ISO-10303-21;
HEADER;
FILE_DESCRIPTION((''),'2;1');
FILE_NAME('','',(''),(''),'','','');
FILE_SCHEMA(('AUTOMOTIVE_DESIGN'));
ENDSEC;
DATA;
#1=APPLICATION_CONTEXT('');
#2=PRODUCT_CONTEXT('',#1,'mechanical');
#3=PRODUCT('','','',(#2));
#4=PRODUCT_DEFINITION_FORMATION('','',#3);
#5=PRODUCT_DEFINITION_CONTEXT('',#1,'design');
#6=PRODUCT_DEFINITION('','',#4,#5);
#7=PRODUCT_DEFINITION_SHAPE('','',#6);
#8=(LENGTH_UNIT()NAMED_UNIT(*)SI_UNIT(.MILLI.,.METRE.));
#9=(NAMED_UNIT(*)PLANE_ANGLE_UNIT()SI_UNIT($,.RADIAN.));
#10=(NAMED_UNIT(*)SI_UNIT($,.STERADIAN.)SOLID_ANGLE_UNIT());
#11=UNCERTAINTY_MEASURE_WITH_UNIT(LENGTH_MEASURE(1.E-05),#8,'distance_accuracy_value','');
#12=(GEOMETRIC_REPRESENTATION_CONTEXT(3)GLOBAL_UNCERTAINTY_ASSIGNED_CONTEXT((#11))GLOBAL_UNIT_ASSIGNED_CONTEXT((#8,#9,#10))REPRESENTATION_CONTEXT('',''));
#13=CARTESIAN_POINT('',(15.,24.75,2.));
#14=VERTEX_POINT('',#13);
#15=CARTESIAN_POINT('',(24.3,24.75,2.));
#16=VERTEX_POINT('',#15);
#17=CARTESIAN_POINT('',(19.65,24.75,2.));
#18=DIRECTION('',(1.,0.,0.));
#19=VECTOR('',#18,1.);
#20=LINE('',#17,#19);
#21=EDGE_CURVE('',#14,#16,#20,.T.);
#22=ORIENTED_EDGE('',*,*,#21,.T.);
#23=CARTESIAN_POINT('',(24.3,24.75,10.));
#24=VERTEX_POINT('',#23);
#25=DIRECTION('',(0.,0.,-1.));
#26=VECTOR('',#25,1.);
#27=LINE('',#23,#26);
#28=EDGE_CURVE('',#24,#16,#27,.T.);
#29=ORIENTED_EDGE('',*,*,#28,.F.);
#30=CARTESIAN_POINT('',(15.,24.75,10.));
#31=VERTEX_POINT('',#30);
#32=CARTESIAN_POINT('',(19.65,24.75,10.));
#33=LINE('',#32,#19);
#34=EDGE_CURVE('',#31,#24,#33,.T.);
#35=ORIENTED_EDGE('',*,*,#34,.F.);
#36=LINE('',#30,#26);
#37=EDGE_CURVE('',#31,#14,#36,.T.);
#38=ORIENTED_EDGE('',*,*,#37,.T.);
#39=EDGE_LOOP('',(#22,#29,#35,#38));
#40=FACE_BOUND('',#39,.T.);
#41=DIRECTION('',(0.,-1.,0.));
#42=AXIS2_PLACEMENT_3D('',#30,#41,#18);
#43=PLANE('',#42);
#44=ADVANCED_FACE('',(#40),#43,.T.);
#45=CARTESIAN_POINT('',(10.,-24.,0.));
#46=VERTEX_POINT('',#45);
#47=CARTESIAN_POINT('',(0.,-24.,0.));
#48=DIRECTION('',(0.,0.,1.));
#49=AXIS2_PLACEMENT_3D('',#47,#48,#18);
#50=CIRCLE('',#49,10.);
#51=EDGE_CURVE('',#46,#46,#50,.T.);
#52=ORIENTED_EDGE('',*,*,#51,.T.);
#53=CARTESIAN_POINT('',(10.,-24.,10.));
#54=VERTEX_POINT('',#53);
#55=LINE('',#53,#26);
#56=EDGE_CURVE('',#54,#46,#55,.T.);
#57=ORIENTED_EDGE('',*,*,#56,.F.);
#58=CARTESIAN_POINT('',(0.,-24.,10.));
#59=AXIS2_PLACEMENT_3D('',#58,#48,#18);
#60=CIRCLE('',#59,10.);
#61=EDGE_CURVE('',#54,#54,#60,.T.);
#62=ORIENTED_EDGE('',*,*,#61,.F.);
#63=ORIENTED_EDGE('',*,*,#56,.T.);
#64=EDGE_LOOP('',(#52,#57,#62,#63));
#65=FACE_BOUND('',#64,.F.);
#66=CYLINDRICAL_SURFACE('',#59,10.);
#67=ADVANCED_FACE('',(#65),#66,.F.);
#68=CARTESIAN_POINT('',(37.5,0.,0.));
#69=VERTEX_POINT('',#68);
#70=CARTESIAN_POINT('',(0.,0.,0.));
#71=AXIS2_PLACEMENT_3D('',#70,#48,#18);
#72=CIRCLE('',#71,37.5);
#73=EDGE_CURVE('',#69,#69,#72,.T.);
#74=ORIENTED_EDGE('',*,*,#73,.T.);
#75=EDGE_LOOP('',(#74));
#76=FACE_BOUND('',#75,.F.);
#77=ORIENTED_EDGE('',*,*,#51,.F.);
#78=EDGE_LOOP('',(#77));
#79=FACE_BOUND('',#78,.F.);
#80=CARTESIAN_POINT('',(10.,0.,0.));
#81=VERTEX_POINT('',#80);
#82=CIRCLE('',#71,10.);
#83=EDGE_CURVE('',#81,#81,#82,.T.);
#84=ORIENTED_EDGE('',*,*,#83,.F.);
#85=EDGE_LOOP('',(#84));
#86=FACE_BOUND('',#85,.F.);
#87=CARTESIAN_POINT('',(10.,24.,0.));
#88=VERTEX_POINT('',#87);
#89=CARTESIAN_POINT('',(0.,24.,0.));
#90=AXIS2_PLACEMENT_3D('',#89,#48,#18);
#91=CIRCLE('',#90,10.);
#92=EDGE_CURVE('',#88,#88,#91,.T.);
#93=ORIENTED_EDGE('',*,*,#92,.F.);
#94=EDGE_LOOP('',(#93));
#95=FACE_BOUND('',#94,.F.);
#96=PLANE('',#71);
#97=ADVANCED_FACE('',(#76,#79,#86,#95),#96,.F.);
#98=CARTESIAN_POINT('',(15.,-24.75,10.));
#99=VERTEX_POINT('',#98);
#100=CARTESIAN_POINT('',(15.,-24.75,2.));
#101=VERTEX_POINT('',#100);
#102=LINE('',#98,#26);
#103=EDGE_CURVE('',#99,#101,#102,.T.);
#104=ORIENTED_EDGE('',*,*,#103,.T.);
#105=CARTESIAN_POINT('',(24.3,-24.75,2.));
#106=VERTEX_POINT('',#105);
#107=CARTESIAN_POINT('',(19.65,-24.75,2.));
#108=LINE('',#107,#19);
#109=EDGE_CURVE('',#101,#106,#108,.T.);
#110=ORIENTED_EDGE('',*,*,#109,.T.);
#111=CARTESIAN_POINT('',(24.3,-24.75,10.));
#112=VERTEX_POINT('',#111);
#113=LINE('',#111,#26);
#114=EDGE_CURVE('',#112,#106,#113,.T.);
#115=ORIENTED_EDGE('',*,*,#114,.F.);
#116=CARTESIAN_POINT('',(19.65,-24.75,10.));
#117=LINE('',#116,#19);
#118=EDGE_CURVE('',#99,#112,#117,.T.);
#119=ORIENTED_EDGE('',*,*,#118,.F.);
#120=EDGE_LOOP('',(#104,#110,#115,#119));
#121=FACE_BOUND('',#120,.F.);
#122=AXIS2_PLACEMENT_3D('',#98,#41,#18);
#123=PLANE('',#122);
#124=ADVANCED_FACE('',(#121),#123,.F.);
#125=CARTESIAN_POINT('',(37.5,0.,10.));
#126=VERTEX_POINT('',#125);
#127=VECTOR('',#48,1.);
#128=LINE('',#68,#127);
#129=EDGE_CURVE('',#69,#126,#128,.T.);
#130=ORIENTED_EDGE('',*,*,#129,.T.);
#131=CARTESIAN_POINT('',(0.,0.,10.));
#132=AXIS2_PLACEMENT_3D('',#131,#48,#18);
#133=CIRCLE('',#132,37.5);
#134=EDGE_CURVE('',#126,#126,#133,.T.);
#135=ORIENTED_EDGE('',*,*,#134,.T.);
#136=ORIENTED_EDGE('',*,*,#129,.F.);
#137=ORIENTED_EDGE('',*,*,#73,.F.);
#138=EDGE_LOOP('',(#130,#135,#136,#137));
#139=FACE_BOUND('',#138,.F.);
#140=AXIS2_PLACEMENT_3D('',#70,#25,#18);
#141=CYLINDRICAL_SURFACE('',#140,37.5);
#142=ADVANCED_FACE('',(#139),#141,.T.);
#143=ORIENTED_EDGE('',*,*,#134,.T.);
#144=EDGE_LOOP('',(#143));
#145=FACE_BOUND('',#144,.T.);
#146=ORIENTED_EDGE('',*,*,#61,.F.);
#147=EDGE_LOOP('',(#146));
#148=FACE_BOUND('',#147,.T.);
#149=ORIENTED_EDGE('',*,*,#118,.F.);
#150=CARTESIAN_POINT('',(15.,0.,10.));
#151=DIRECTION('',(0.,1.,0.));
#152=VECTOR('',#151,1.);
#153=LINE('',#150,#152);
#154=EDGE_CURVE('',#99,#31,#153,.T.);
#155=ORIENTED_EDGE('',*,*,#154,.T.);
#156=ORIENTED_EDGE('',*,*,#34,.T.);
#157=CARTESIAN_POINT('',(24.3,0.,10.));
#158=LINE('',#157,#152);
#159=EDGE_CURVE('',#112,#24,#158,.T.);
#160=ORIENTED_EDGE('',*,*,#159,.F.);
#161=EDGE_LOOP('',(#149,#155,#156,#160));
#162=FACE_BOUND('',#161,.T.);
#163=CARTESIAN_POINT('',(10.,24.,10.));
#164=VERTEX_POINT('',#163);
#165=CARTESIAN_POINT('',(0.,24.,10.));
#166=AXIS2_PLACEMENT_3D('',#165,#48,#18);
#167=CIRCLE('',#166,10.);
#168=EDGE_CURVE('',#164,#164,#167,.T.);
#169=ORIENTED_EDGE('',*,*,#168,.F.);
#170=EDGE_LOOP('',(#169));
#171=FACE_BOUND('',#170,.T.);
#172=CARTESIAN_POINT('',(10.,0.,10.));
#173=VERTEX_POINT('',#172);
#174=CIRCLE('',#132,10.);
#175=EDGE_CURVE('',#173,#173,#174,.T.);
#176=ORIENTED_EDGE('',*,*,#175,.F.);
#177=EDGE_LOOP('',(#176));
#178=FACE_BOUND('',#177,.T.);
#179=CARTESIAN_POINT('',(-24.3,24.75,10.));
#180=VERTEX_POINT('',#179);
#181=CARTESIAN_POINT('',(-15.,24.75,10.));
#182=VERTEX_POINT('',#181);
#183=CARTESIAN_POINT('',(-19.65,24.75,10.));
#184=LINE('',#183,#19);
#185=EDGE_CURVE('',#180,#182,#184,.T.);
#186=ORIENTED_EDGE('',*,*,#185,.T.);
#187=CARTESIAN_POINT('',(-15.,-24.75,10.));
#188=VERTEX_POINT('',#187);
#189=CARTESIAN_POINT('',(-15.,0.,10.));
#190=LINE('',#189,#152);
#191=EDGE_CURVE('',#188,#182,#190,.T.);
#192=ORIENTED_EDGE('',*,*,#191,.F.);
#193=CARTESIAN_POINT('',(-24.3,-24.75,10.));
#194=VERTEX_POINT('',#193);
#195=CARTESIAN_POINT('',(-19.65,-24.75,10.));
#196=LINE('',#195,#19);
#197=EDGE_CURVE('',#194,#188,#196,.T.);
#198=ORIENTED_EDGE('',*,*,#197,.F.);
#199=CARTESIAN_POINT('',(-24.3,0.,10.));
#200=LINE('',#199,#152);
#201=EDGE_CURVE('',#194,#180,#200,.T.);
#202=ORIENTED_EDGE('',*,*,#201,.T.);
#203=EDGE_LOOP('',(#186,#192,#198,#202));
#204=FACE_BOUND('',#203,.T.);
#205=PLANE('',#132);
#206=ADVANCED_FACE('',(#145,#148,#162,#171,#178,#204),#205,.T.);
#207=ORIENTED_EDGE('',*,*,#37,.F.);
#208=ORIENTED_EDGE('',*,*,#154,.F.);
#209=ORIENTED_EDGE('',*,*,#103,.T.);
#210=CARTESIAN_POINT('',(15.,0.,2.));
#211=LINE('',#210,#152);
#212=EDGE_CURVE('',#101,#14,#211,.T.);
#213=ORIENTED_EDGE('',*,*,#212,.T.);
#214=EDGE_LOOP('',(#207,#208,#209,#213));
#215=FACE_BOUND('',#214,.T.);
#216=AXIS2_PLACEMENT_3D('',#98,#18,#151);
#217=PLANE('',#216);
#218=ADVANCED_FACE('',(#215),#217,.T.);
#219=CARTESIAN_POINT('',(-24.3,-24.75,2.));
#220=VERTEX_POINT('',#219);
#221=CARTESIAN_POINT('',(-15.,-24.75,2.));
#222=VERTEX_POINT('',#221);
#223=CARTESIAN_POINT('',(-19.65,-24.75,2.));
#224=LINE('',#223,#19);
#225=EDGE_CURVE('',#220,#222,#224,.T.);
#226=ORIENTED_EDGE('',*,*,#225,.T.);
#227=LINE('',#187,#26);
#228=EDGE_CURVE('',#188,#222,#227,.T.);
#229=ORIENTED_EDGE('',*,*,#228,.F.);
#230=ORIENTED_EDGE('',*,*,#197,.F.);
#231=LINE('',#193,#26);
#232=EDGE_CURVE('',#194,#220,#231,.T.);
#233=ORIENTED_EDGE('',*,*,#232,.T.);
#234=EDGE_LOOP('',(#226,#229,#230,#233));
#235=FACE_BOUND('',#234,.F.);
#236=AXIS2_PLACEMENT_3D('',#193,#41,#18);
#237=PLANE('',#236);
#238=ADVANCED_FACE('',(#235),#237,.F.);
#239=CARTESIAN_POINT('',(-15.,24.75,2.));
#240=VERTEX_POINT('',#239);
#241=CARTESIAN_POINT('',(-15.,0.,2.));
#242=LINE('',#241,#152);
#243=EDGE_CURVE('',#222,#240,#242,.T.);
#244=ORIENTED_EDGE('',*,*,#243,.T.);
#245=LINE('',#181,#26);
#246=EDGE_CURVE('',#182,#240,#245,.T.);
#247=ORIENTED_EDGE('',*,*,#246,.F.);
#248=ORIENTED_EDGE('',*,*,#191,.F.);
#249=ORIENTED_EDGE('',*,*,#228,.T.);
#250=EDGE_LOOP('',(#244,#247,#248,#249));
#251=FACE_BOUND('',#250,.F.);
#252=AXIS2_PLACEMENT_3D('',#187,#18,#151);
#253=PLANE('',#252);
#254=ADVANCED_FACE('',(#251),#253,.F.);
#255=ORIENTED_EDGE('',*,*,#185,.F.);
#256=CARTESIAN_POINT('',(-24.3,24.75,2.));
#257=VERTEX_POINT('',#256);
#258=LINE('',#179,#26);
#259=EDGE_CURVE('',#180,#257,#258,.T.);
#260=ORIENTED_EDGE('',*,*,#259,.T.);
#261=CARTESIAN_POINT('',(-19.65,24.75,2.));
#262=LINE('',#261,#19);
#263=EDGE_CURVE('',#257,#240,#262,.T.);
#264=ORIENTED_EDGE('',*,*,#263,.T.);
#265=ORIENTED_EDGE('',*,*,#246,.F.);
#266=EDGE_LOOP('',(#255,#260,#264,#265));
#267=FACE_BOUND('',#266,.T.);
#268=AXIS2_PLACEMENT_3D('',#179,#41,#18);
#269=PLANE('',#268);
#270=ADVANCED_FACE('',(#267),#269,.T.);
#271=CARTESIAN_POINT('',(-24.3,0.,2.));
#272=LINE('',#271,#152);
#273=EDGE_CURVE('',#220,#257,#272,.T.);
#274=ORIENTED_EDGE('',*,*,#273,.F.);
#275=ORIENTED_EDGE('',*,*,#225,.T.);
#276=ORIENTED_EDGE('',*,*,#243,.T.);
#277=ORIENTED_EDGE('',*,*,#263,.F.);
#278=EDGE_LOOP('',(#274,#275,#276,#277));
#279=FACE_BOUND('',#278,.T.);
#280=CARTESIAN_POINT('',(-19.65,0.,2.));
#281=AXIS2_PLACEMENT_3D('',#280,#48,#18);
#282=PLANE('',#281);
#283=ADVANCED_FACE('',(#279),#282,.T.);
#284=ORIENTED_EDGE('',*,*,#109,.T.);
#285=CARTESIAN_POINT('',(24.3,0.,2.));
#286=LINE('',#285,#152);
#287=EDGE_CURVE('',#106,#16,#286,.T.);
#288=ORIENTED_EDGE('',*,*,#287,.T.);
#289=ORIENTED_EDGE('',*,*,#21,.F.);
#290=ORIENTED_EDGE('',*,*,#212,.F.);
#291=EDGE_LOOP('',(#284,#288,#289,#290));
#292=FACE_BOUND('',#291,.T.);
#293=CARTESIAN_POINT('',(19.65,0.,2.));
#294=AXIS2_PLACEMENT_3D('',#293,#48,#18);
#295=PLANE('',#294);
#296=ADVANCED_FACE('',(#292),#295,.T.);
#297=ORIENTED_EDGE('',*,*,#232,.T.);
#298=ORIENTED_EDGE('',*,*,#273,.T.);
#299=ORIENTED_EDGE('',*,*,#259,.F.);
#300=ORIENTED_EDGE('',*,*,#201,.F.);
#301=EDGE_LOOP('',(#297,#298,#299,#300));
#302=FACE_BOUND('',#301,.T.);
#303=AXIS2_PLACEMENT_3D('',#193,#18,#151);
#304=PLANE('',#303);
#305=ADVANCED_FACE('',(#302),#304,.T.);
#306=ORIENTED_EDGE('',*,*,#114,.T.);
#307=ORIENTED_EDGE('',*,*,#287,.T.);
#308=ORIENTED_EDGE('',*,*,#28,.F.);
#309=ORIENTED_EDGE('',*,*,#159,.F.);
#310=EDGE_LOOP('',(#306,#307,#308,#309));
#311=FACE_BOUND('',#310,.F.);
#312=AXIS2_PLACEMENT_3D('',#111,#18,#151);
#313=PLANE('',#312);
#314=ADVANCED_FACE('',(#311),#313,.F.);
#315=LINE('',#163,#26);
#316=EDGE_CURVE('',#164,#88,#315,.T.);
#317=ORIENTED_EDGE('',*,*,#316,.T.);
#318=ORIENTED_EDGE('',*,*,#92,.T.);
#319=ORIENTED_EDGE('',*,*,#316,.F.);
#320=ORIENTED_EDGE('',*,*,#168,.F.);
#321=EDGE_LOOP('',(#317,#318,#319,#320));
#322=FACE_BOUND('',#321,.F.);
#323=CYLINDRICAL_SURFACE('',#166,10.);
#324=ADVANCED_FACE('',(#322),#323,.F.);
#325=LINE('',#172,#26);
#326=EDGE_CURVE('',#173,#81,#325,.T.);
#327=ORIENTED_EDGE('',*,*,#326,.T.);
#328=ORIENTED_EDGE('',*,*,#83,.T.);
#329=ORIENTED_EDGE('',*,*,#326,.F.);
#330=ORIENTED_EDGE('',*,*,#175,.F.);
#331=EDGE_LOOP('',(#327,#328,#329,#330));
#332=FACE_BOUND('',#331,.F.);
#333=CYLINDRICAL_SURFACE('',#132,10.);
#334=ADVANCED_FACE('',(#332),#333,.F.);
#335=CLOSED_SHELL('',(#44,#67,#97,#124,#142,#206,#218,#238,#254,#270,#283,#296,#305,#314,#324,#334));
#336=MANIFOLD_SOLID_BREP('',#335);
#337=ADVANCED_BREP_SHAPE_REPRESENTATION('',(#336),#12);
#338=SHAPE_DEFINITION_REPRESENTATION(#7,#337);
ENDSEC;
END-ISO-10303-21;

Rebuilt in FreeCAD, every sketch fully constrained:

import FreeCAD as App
import Part
import Sketcher
from FreeCAD import Vector
Q = App.Units.Quantity

doc = App.newDocument("Part")
params = doc.addObject("Spreadsheet::Sheet", "Params")
for row, (alias, value) in enumerate([
    ("sketch1_diameter", "75 mm"),
    ("pad1_length", "10 mm"),
    ("sketch2_width", "9.3 mm"),
    ("sketch2_height", "49.5 mm"),
    ("pocket1_length", "8 mm"),
    ("sketch3_diameter", "20 mm"),
], start=1):
    params.set(f"A{row}", alias)
    params.set(f"B{row}", "=" + value)
    params.setAlias(f"B{row}", alias)

body = doc.addObject("PartDesign::Body", "Body")

sketch1 = doc.addObject("Sketcher::SketchObject", "Sketch")
body.addObject(sketch1)
sketch1.AttachmentSupport = (doc.XY_Plane, [""])
sketch1.MapMode = "FlatFace"
sketch1.addGeometry(Part.Circle(Vector(0, 0, 0), Vector(0, 0, 1), 38), False)
sketch1.addConstraint([
    Sketcher.Constraint("Coincident", 0, 3, -1, 1),
    Sketcher.Constraint("Diameter", 0, Q("75 mm")),
])
sketch1.setExpression("Constraints[1]", "Params.sketch1_diameter")
pad1 = doc.addObject("PartDesign::Pad", "Pad")
body.addObject(pad1)
pad1.Profile = sketch1
pad1.setExpression("Length", "Params.pad1_length")

sketch2 = doc.addObject("Sketcher::SketchObject", "Sketch001")
body.addObject(sketch2)
sketch2.AttachmentSupport = (doc.XY_Plane, [""])
sketch2.MapMode = "FlatFace"
sketch2.AttachmentOffset = App.Placement(Vector(0, 0, 10), App.Rotation())
sketch2.addGeometry([
    Part.LineSegment(Vector(-24, 25, 0), Vector(-24, -25, 0)),
    Part.LineSegment(Vector(-24, -25, 0), Vector(-15, -25, 0)),
    Part.LineSegment(Vector(-15, -25, 0), Vector(-15, 25, 0)),
    Part.LineSegment(Vector(-15, 25, 0), Vector(-24, 25, 0)),
    Part.LineSegment(Vector(15, 25, 0), Vector(15, -25, 0)),
    Part.LineSegment(Vector(15, -25, 0), Vector(24, -25, 0)),
    Part.LineSegment(Vector(24, -25, 0), Vector(24, 25, 0)),
    Part.LineSegment(Vector(24, 25, 0), Vector(15, 25, 0)),
], False)
sketch2.addConstraint([
    Sketcher.Constraint("Coincident", 0, 2, 1, 1),
    Sketcher.Constraint("Coincident", 1, 2, 2, 1),
    Sketcher.Constraint("Coincident", 2, 2, 3, 1),
    Sketcher.Constraint("Coincident", 3, 2, 0, 1),
    Sketcher.Constraint("Coincident", 4, 2, 5, 1),
    Sketcher.Constraint("Coincident", 5, 2, 6, 1),
    Sketcher.Constraint("Coincident", 6, 2, 7, 1),
    Sketcher.Constraint("Coincident", 7, 2, 4, 1),
    Sketcher.Constraint("Vertical", 0),
    Sketcher.Constraint("Horizontal", 1),
    Sketcher.Constraint("Vertical", 2),
    Sketcher.Constraint("Horizontal", 3),
    Sketcher.Constraint("Vertical", 4),
    Sketcher.Constraint("Horizontal", 5),
    Sketcher.Constraint("Vertical", 6),
    Sketcher.Constraint("Horizontal", 7),
    Sketcher.Constraint("Symmetric", 2, 2, 4, 2, -1, 1),
    Sketcher.Constraint("Symmetric", 0, 2, 6, 2, -1, 1),
    Sketcher.Constraint("Horizontal", 1, 2, 4, 2),
    Sketcher.Constraint("DistanceX", 1, 1, 1, 2, Q("9.3 mm")),
    Sketcher.Constraint("DistanceY", 0, 2, 0, 1, Q("49.5 mm")),
    Sketcher.Constraint("DistanceX", 1, 2, -1, 1, Q("15 mm")),
])
sketch2.setExpression("Constraints[19]", "Params.sketch2_width")
sketch2.setExpression("Constraints[20]", "Params.sketch2_height")
pocket1 = doc.addObject("PartDesign::Pocket", "Pocket")
body.addObject(pocket1)
pocket1.Profile = sketch2
pocket1.setExpression("Length", "Params.pocket1_length")

sketch3 = doc.addObject("Sketcher::SketchObject", "Sketch002")
body.addObject(sketch3)
sketch3.AttachmentSupport = (doc.XY_Plane, [""])
sketch3.MapMode = "FlatFace"
sketch3.AttachmentOffset = App.Placement(Vector(0, 0, 10), App.Rotation())
sketch3.addGeometry([
    Part.Circle(Vector(0, 24, 0), Vector(0, 0, 1), 10),
    Part.Circle(Vector(0, 0, 0), Vector(0, 0, 1), 10),
    Part.Circle(Vector(0, -24, 0), Vector(0, 0, 1), 10),
], False)
sketch3.addConstraint([
    Sketcher.Constraint("Coincident", 1, 3, -1, 1),
    Sketcher.Constraint("Equal", 0, 1),
    Sketcher.Constraint("Equal", 1, 2),
    Sketcher.Constraint("Symmetric", 0, 3, 2, 3, -1, 1),
    Sketcher.Constraint("PointOnObject", 0, 3, -2),
    Sketcher.Constraint("Diameter", 0, Q("20 mm")),
    Sketcher.Constraint("DistanceY", -1, 1, 0, 3, Q("24 mm")),
])
sketch3.setExpression("Constraints[5]", "Params.sketch3_diameter")
pocket2 = doc.addObject("PartDesign::Pocket", "Pocket001")
body.addObject(pocket2)
pocket2.Profile = sketch3
pocket2.Type = "ThroughAll"

doc.recompute()
